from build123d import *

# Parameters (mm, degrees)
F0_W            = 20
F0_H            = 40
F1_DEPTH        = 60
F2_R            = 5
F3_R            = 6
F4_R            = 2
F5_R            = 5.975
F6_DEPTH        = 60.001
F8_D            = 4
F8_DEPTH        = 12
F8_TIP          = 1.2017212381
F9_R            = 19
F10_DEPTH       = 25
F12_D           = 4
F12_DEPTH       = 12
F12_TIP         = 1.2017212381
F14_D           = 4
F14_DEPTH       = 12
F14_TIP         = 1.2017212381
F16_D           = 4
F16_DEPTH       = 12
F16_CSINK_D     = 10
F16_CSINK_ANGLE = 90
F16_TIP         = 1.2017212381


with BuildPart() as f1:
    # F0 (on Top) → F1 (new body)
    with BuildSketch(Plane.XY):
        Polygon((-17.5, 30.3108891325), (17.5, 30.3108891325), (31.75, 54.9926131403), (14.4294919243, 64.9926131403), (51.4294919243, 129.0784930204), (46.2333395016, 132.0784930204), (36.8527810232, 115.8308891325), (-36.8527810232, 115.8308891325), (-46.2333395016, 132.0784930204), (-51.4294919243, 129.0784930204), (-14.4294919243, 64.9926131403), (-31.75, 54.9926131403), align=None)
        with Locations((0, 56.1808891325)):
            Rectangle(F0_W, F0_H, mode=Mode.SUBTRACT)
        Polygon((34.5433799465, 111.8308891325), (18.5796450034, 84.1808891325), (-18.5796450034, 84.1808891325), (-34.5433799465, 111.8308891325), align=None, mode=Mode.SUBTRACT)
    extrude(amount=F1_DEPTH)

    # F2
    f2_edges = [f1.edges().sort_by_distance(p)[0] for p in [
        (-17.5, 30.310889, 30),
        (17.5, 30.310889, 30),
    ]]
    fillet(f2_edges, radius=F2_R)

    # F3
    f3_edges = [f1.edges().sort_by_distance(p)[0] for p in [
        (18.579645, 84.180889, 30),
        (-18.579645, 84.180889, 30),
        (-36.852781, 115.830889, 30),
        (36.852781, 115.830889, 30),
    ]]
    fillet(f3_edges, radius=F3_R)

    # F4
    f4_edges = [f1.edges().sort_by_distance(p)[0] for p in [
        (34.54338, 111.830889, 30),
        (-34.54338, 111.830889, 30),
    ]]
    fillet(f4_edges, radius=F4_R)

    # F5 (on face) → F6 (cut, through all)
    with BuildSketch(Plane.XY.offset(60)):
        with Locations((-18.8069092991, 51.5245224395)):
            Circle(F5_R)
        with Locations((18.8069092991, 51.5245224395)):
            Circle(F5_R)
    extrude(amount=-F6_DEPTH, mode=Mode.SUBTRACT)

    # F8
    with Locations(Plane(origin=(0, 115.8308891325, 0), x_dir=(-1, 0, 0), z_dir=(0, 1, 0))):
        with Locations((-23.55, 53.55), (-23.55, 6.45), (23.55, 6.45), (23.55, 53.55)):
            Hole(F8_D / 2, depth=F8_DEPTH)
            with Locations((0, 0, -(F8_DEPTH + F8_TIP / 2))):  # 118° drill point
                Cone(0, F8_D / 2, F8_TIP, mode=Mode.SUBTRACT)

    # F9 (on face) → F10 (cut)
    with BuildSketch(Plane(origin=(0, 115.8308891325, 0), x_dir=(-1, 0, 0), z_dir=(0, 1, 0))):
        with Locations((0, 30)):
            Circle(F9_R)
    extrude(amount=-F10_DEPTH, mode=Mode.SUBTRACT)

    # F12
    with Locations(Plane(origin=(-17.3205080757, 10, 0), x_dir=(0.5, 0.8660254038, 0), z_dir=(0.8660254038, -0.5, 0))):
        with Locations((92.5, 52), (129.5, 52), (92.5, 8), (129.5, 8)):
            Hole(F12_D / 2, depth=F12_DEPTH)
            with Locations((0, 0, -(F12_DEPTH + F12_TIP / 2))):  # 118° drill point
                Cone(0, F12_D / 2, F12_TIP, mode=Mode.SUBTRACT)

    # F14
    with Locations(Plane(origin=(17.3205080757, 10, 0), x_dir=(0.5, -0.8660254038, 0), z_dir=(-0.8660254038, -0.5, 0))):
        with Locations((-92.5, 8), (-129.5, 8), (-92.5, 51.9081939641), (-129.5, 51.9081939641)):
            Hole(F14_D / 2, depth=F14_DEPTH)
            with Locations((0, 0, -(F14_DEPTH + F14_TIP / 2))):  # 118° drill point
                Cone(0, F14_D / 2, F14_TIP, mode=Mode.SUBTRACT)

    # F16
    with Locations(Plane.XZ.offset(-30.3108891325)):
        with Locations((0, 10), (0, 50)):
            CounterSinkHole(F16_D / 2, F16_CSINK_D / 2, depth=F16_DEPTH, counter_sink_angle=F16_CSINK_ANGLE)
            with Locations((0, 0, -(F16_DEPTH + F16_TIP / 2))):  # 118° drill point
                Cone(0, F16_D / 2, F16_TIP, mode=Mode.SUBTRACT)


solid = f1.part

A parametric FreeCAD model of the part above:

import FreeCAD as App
import Part
import Sketcher
Q = App.Units.Quantity


def edges_at(feature, points):
    """Names of the edges that pass closest to the given points."""
    edges = feature.Shape.Edges
    near = lambda p: min(range(len(edges)), key=lambda i: edges[i].distToShape(Part.Vertex(*p))[0])
    return sorted({f"Edge{near(p) + 1}" for p in points})

doc = App.newDocument("Part")
body = doc.addObject("PartDesign::Body", "Body")

# Sketch on XY plane
sketch1 = body.newObject("Sketcher::SketchObject", "Sketch")
sketch1.AttachmentSupport = (doc.getObject("XY_Plane"), [""])
sketch1.MapMode = "FlatFace"
sketch1.addGeometry([
    Part.LineSegment(App.Vector(-18, 30, 0), App.Vector(18, 30, 0)),  # 0
    Part.LineSegment(App.Vector(18, 30, 0), App.Vector(32, 55, 0)),  # 1
    Part.LineSegment(App.Vector(32, 55, 0), App.Vector(14, 65, 0)),  # 2
    Part.LineSegment(App.Vector(14, 65, 0), App.Vector(51, 129, 0)),  # 3
    Part.LineSegment(App.Vector(51, 129, 0), App.Vector(46, 132, 0)),  # 4
    Part.LineSegment(App.Vector(46, 132, 0), App.Vector(37, 116, 0)),  # 5
    Part.LineSegment(App.Vector(37, 116, 0), App.Vector(-37, 116, 0)),  # 6
    Part.LineSegment(App.Vector(-37, 116, 0), App.Vector(-46, 132, 0)),  # 7
    Part.LineSegment(App.Vector(-46, 132, 0), App.Vector(-51, 129, 0)),  # 8
    Part.LineSegment(App.Vector(-51, 129, 0), App.Vector(-14, 65, 0)),  # 9
    Part.LineSegment(App.Vector(-14, 65, 0), App.Vector(-32, 55, 0)),  # 10
    Part.LineSegment(App.Vector(-32, 55, 0), App.Vector(-18, 30, 0)),  # 11
    Part.LineSegment(App.Vector(10, 36, 0), App.Vector(-10, 36, 0)),  # 12
    Part.LineSegment(App.Vector(-10, 36, 0), App.Vector(-10, 76, 0)),  # 13
    Part.LineSegment(App.Vector(-10, 76, 0), App.Vector(10, 76, 0)),  # 14
    Part.LineSegment(App.Vector(10, 76, 0), App.Vector(10, 36, 0)),  # 15
    Part.LineSegment(App.Vector(-35, 112, 0), App.Vector(35, 112, 0)),  # 16
    Part.LineSegment(App.Vector(35, 112, 0), App.Vector(19, 84, 0)),  # 17
    Part.LineSegment(App.Vector(19, 84, 0), App.Vector(-19, 84, 0)),  # 18
    Part.LineSegment(App.Vector(-19, 84, 0), App.Vector(-35, 112, 0)),  # 19
], False)
sketch1.addConstraint([
    Sketcher.Constraint("Coincident", 0, 2, 1, 1),
    Sketcher.Constraint("Coincident", 1, 2, 2, 1),
    Sketcher.Constraint("Coincident", 2, 2, 3, 1),
    Sketcher.Constraint("Coincident", 3, 2, 4, 1),
    Sketcher.Constraint("Coincident", 4, 2, 5, 1),
    Sketcher.Constraint("Coincident", 5, 2, 6, 1),
    Sketcher.Constraint("Coincident", 6, 2, 7, 1),
    Sketcher.Constraint("Coincident", 7, 2, 8, 1),
    Sketcher.Constraint("Coincident", 8, 2, 9, 1),
    Sketcher.Constraint("Coincident", 9, 2, 10, 1),
    Sketcher.Constraint("Coincident", 10, 2, 11, 1),
    Sketcher.Constraint("Coincident", 11, 2, 0, 1),
    Sketcher.Constraint("Coincident", 12, 2, 13, 1),
    Sketcher.Constraint("Coincident", 13, 2, 14, 1),
    Sketcher.Constraint("Coincident", 14, 2, 15, 1),
    Sketcher.Constraint("Coincident", 15, 2, 12, 1),
    Sketcher.Constraint("Coincident", 16, 2, 17, 1),
    Sketcher.Constraint("Coincident", 17, 2, 18, 1),
    Sketcher.Constraint("Coincident", 18, 2, 19, 1),
    Sketcher.Constraint("Coincident", 19, 2, 16, 1),
    Sketcher.Constraint("Horizontal", 0),
    Sketcher.Constraint("Horizontal", 6),
    Sketcher.Constraint("Horizontal", 12),
    Sketcher.Constraint("Vertical", 13),
    Sketcher.Constraint("Horizontal", 14),
    Sketcher.Constraint("Vertical", 15),
    Sketcher.Constraint("Horizontal", 16),
    Sketcher.Constraint("Horizontal", 18),
    Sketcher.Constraint("Symmetric", 4, 2, 7, 2, -2),
    Sketcher.Constraint("Symmetric", 3, 2, 8, 2, -2),
    Sketcher.Constraint("Symmetric", 2, 2, 9, 2, -2),
    Sketcher.Constraint("Symmetric", 1, 2, 10, 2, -2),
    Sketcher.Constraint("Perpendicular", 1, 2),
    Sketcher.Constraint("Perpendicular", 2, 3),
    Sketcher.Constraint("Perpendicular", 3, 4),
    Sketcher.Constraint("Perpendicular", 4, 5),
    Sketcher.Constraint("Perpendicular", 7, 8),
    Sketcher.Constraint("Perpendicular", 10, 11),
    Sketcher.Constraint("Parallel", 5, 17),
    Sketcher.Constraint("Parallel", 11, 19),
    Sketcher.Constraint("DistanceX", 0, 1, 0, 2, Q("35 mm")),
    Sketcher.Constraint("DistanceX", 12, 2, 12, 1, Q("20 mm")),
    Sketcher.Constraint("DistanceY", 13, 1, 13, 2, Q("40 mm")),
    Sketcher.Constraint("Angle", 1, Q("60 deg")),
    Sketcher.Constraint("Distance", 2, Q("20 mm")),
    Sketcher.Constraint("Distance", 3, Q("74 mm")),
    Sketcher.Constraint("Distance", 4, Q("6 mm")),
    Sketcher.Constraint("DistanceX", 12, 2, -1, 1, Q("10 mm")),
    Sketcher.Constraint("DistanceY", 16, 2, 5, 2, Q("4 mm")),
    Sketcher.Constraint("DistanceY", 14, 2, 17, 2, Q("8 mm")),
    Sketcher.Constraint("Distance", 1, Q("28.5 mm")),
    Sketcher.Constraint("DistanceY", 0, 2, 5, 2, Q("85.52 mm")),
    Sketcher.Constraint("DistanceY", 11, 2, 12, 2, Q("5.87 mm")),
    Sketcher.Constraint("DistanceX", 16, 1, 16, 2, Q("69.08676 mm")),
    Sketcher.Constraint("DistanceX", 16, 2, 5, 2, Q("2.309401 mm")),
    Sketcher.Constraint("DistanceY", -1, 1, 0, 2, Q("30.310889 mm")),
])
pad1 = body.newObject("PartDesign::Pad", "Pad")
pad1.Profile = sketch1
pad1.Length = 60
doc.recompute()

fillet = body.newObject("PartDesign::Fillet", "Fillet")
fillet.Base = (pad1, edges_at(pad1, [(-17.5, 30.311, 30), (17.5, 30.311, 30)]))
fillet.Radius = 5
doc.recompute()

fillet2 = body.newObject("PartDesign::Fillet", "Fillet001")
fillet2.Base = (fillet, edges_at(fillet, [
    (18.58, 84.181, 30),
    (-18.58, 84.181, 30),
    (-36.853, 115.831, 30),
    (36.853, 115.831, 30),
]))
fillet2.Radius = 6
doc.recompute()

fillet3 = body.newObject("PartDesign::Fillet", "Fillet002")
fillet3.Base = (fillet2, edges_at(fillet2, [(34.543, 111.831, 30), (-34.543, 111.831, 30)]))
fillet3.Radius = 2

# Sketch on XY plane
sketch2 = body.newObject("Sketcher::SketchObject", "Sketch001")
sketch2.AttachmentSupport = (doc.getObject("XY_Plane"), [""])
sketch2.MapMode = "FlatFace"
sketch2.AttachmentOffset = App.Placement(App.Vector(0, 0, 60), App.Rotation())
sketch2.addGeometry([
    Part.Circle(App.Vector(-19, 52, 0), App.Vector(0, 0, 1), 6),
    Part.Circle(App.Vector(19, 52, 0), App.Vector(0, 0, 1), 6),
], False)
sketch2.addConstraint([
    Sketcher.Constraint("Equal", 0, 1),
    Sketcher.Constraint("Symmetric", 0, 3, 1, 3, -2),
    Sketcher.Constraint("Diameter", 0, Q("11.95 mm")),
    Sketcher.Constraint("DistanceX", 0, 3, -1, 1, Q("18.806909 mm")),
    Sketcher.Constraint("DistanceY", -1, 1, 0, 3, Q("51.524522 mm")),
])
pocket1 = body.newObject("PartDesign::Pocket", "Pocket")
pocket1.Profile = sketch2
pocket1.Type = "ThroughAll"

# Sketch on XZ plane
sketch3 = body.newObject("Sketcher::SketchObject", "Sketch002")
sketch3.AttachmentSupport = (doc.getObject("XZ_Plane"), [""])
sketch3.MapMode = "FlatFace"
sketch3.AttachmentOffset = App.Placement(App.Vector(0, 0, -115.830889), App.Rotation())
sketch3.addGeometry([
    Part.Circle(App.Vector(23.6, 53.5, 0), App.Vector(0, 0, 1), 2),
    Part.Circle(App.Vector(23.6, 6.5, 0), App.Vector(0, 0, 1), 2),
    Part.Circle(App.Vector(-23.6, 6.5, 0), App.Vector(0, 0, 1), 2),
    Part.Circle(App.Vector(-23.6, 53.5, 0), App.Vector(0, 0, 1), 2),
], False)
sketch3.addConstraint([
    Sketcher.Constraint("Equal", 0, 1),
    Sketcher.Constraint("Equal", 1, 2),
    Sketcher.Constraint("Equal", 2, 3),
    Sketcher.Constraint("Symmetric", 1, 3, 2, 3, -2),
    Sketcher.Constraint("Symmetric", 0, 3, 3, 3, -2),
    Sketcher.Constraint("Vertical", 0, 3, 1, 3),
    Sketcher.Constraint("Diameter", 0, Q("4 mm")),
    Sketcher.Constraint("DistanceY", 1, 3, 0, 3, Q("47.1 mm")),
    Sketcher.Constraint("DistanceX", 2, 3, 1, 3, Q("47.1 mm")),
    Sketcher.Constraint("DistanceY", -1, 1, 0, 3, Q("53.55 mm")),
])
doc.recompute()
hole = body.newObject("PartDesign::Hole", "Hole")
hole.Profile = sketch3
hole.ThreadType = "None"
hole.Diameter = 4
hole.DepthType = "Dimension"
hole.Depth = 12
hole.DrillPoint = "Angled"
hole.DrillPointAngle = 118
hole.Reversed = True

# Sketch on XZ plane
sketch4 = body.newObject("Sketcher::SketchObject", "Sketch003")
sketch4.AttachmentSupport = (doc.getObject("XZ_Plane"), [""])
sketch4.MapMode = "FlatFace"
sketch4.AttachmentOffset = App.Placement(App.Vector(0, 0, -115.830889), App.Rotation())
sketch4.addGeometry(Part.Circle(App.Vector(0, 30, 0), App.Vector(0, 0, 1), 19), False)
sketch4.addConstraint([
    Sketcher.Constraint("PointOnObject", 0, 3, -2),
    Sketcher.Constraint("Diameter", 0, Q("38 mm")),
    Sketcher.Constraint("DistanceY", -1, 1, 0, 3, Q("30 mm")),
])
pocket2 = body.newObject("PartDesign::Pocket", "Pocket001")
pocket2.Profile = sketch4
pocket2.Length = 25
pocket2.Reversed = True

# Sketch on an angled plane
sketch5 = body.newObject("Sketcher::SketchObject", "Sketch004")
sketch5.Placement = App.Placement(App.Vector(-17.320508, 10, 0), App.Rotation(App.Vector(0.5, 0.866025404, 0), App.Vector(0, 0, 1), App.Vector(0.866025404, -0.5, 0), "ZXY"))
sketch5.addGeometry([
    Part.Circle(App.Vector(92.5, 52, 0), App.Vector(0, 0, 1), 2),
    Part.Circle(App.Vector(129.5, 52, 0), App.Vector(0, 0, 1), 2),
    Part.Circle(App.Vector(92.5, 8, 0), App.Vector(0, 0, 1), 2),
    Part.Circle(App.Vector(129.5, 8, 0), App.Vector(0, 0, 1), 2),
], False)
sketch5.addConstraint([
    Sketcher.Constraint("Equal", 0, 1),
    Sketcher.Constraint("Equal", 1, 2),
    Sketcher.Constraint("Equal", 2, 3),
    Sketcher.Constraint("Horizontal", 0, 3, 1, 3),
    Sketcher.Constraint("Horizontal", 2, 3, 3, 3),
    Sketcher.Constraint("Vertical", 0, 3, 2, 3),
    Sketcher.Constraint("Vertical", 1, 3, 3, 3),
    Sketcher.Constraint("Diameter", 0, Q("4 mm")),
    Sketcher.Constraint("DistanceY", -1, 1, 0, 3, Q("52 mm")),
    Sketcher.Constraint("DistanceY", -1, 1, 2, 3, Q("8 mm")),
    Sketcher.Constraint("DistanceX", 0, 3, 1, 3, Q("37 mm")),
    Sketcher.Constraint("DistanceX", -1, 1, 0, 3, Q("92.5 mm")),
])
doc.recompute()
hole2 = body.newObject("PartDesign::Hole", "Hole001")
hole2.Profile = sketch5
hole2.ThreadType = "None"
hole2.Diameter = 4
hole2.DepthType = "Dimension"
hole2.Depth = 12
hole2.DrillPoint = "Angled"
hole2.DrillPointAngle = 118

# Sketch on an angled plane
sketch6 = body.newObject("Sketcher::SketchObject", "Sketch005")
sketch6.Placement = App.Placement(App.Vector(17.320508, 10, 0), App.Rotation(App.Vector(0.5, -0.866025404, 0), App.Vector(0, 0, 1), App.Vector(-0.866025404, -0.5, 0), "ZXY"))
sketch6.addGeometry([
    Part.Circle(App.Vector(-92.5, 8, 0), App.Vector(0, 0, 1), 2),
    Part.Circle(App.Vector(-129.5, 8, 0), App.Vector(0, 0, 1), 2),
    Part.Circle(App.Vector(-92.5, 51.9, 0), App.Vector(0, 0, 1), 2),
    Part.Circle(App.Vector(-129.5, 51.9, 0), App.Vector(0, 0, 1), 2),
], False)
sketch6.addConstraint([
    Sketcher.Constraint("Equal", 0, 1),
    Sketcher.Constraint("Equal", 1, 2),
    Sketcher.Constraint("Equal", 2, 3),
    Sketcher.Constraint("Horizontal", 0, 3, 1, 3),
    Sketcher.Constraint("Horizontal", 2, 3, 3, 3),
    Sketcher.Constraint("Vertical", 0, 3, 2, 3),
    Sketcher.Constraint("Vertical", 1, 3, 3, 3),
    Sketcher.Constraint("Diameter", 0, Q("4 mm")),
    Sketcher.Constraint("DistanceY", -1, 1, 0, 3, Q("8 mm")),
    Sketcher.Constraint("DistanceX", 1, 3, 0, 3, Q("37 mm")),
    Sketcher.Constraint("DistanceX", 0, 3, -1, 1, Q("92.5 mm")),
    Sketcher.Constraint("DistanceY", -1, 1, 2, 3, Q("51.908194 mm")),
])
doc.recompute()
hole3 = body.newObject("PartDesign::Hole", "Hole002")
hole3.Profile = sketch6
hole3.ThreadType = "None"
hole3.Diameter = 4
hole3.DepthType = "Dimension"
hole3.Depth = 12
hole3.DrillPoint = "Angled"
hole3.DrillPointAngle = 118

# Sketch on XZ plane
sketch7 = body.newObject("Sketcher::SketchObject", "Sketch006")
sketch7.AttachmentSupport = (doc.getObject("XZ_Plane"), [""])
sketch7.MapMode = "FlatFace"
sketch7.AttachmentOffset = App.Placement(App.Vector(0, 0, -30.310889), App.Rotation())
sketch7.addGeometry([
    Part.Circle(App.Vector(0, 10, 0), App.Vector(0, 0, 1), 2),
    Part.Circle(App.Vector(0, 50, 0), App.Vector(0, 0, 1), 2),
], False)
sketch7.addConstraint([
    Sketcher.Constraint("Equal", 0, 1),
    Sketcher.Constraint("PointOnObject", 0, 3, -2),
    Sketcher.Constraint("PointOnObject", 1, 3, -2),
    Sketcher.Constraint("Diameter", 0, Q("4 mm")),
    Sketcher.Constraint("DistanceY", -1, 1, 0, 3, Q("10 mm")),
    Sketcher.Constraint("DistanceY", -1, 1, 1, 3, Q("50 mm")),
])
doc.recompute()
hole4 = body.newObject("PartDesign::Hole", "Hole003")
hole4.Profile = sketch7
hole4.ThreadType = "None"
hole4.Diameter = 4
hole4.DepthType = "Dimension"
hole4.Depth = 12
hole4.DrillPoint = "Angled"
hole4.DrillPointAngle = 118
hole4.HoleCutType = "Countersink"
hole4.HoleCutDiameter = 10
hole4.HoleCutCountersinkAngle = 90

doc.recompute()
